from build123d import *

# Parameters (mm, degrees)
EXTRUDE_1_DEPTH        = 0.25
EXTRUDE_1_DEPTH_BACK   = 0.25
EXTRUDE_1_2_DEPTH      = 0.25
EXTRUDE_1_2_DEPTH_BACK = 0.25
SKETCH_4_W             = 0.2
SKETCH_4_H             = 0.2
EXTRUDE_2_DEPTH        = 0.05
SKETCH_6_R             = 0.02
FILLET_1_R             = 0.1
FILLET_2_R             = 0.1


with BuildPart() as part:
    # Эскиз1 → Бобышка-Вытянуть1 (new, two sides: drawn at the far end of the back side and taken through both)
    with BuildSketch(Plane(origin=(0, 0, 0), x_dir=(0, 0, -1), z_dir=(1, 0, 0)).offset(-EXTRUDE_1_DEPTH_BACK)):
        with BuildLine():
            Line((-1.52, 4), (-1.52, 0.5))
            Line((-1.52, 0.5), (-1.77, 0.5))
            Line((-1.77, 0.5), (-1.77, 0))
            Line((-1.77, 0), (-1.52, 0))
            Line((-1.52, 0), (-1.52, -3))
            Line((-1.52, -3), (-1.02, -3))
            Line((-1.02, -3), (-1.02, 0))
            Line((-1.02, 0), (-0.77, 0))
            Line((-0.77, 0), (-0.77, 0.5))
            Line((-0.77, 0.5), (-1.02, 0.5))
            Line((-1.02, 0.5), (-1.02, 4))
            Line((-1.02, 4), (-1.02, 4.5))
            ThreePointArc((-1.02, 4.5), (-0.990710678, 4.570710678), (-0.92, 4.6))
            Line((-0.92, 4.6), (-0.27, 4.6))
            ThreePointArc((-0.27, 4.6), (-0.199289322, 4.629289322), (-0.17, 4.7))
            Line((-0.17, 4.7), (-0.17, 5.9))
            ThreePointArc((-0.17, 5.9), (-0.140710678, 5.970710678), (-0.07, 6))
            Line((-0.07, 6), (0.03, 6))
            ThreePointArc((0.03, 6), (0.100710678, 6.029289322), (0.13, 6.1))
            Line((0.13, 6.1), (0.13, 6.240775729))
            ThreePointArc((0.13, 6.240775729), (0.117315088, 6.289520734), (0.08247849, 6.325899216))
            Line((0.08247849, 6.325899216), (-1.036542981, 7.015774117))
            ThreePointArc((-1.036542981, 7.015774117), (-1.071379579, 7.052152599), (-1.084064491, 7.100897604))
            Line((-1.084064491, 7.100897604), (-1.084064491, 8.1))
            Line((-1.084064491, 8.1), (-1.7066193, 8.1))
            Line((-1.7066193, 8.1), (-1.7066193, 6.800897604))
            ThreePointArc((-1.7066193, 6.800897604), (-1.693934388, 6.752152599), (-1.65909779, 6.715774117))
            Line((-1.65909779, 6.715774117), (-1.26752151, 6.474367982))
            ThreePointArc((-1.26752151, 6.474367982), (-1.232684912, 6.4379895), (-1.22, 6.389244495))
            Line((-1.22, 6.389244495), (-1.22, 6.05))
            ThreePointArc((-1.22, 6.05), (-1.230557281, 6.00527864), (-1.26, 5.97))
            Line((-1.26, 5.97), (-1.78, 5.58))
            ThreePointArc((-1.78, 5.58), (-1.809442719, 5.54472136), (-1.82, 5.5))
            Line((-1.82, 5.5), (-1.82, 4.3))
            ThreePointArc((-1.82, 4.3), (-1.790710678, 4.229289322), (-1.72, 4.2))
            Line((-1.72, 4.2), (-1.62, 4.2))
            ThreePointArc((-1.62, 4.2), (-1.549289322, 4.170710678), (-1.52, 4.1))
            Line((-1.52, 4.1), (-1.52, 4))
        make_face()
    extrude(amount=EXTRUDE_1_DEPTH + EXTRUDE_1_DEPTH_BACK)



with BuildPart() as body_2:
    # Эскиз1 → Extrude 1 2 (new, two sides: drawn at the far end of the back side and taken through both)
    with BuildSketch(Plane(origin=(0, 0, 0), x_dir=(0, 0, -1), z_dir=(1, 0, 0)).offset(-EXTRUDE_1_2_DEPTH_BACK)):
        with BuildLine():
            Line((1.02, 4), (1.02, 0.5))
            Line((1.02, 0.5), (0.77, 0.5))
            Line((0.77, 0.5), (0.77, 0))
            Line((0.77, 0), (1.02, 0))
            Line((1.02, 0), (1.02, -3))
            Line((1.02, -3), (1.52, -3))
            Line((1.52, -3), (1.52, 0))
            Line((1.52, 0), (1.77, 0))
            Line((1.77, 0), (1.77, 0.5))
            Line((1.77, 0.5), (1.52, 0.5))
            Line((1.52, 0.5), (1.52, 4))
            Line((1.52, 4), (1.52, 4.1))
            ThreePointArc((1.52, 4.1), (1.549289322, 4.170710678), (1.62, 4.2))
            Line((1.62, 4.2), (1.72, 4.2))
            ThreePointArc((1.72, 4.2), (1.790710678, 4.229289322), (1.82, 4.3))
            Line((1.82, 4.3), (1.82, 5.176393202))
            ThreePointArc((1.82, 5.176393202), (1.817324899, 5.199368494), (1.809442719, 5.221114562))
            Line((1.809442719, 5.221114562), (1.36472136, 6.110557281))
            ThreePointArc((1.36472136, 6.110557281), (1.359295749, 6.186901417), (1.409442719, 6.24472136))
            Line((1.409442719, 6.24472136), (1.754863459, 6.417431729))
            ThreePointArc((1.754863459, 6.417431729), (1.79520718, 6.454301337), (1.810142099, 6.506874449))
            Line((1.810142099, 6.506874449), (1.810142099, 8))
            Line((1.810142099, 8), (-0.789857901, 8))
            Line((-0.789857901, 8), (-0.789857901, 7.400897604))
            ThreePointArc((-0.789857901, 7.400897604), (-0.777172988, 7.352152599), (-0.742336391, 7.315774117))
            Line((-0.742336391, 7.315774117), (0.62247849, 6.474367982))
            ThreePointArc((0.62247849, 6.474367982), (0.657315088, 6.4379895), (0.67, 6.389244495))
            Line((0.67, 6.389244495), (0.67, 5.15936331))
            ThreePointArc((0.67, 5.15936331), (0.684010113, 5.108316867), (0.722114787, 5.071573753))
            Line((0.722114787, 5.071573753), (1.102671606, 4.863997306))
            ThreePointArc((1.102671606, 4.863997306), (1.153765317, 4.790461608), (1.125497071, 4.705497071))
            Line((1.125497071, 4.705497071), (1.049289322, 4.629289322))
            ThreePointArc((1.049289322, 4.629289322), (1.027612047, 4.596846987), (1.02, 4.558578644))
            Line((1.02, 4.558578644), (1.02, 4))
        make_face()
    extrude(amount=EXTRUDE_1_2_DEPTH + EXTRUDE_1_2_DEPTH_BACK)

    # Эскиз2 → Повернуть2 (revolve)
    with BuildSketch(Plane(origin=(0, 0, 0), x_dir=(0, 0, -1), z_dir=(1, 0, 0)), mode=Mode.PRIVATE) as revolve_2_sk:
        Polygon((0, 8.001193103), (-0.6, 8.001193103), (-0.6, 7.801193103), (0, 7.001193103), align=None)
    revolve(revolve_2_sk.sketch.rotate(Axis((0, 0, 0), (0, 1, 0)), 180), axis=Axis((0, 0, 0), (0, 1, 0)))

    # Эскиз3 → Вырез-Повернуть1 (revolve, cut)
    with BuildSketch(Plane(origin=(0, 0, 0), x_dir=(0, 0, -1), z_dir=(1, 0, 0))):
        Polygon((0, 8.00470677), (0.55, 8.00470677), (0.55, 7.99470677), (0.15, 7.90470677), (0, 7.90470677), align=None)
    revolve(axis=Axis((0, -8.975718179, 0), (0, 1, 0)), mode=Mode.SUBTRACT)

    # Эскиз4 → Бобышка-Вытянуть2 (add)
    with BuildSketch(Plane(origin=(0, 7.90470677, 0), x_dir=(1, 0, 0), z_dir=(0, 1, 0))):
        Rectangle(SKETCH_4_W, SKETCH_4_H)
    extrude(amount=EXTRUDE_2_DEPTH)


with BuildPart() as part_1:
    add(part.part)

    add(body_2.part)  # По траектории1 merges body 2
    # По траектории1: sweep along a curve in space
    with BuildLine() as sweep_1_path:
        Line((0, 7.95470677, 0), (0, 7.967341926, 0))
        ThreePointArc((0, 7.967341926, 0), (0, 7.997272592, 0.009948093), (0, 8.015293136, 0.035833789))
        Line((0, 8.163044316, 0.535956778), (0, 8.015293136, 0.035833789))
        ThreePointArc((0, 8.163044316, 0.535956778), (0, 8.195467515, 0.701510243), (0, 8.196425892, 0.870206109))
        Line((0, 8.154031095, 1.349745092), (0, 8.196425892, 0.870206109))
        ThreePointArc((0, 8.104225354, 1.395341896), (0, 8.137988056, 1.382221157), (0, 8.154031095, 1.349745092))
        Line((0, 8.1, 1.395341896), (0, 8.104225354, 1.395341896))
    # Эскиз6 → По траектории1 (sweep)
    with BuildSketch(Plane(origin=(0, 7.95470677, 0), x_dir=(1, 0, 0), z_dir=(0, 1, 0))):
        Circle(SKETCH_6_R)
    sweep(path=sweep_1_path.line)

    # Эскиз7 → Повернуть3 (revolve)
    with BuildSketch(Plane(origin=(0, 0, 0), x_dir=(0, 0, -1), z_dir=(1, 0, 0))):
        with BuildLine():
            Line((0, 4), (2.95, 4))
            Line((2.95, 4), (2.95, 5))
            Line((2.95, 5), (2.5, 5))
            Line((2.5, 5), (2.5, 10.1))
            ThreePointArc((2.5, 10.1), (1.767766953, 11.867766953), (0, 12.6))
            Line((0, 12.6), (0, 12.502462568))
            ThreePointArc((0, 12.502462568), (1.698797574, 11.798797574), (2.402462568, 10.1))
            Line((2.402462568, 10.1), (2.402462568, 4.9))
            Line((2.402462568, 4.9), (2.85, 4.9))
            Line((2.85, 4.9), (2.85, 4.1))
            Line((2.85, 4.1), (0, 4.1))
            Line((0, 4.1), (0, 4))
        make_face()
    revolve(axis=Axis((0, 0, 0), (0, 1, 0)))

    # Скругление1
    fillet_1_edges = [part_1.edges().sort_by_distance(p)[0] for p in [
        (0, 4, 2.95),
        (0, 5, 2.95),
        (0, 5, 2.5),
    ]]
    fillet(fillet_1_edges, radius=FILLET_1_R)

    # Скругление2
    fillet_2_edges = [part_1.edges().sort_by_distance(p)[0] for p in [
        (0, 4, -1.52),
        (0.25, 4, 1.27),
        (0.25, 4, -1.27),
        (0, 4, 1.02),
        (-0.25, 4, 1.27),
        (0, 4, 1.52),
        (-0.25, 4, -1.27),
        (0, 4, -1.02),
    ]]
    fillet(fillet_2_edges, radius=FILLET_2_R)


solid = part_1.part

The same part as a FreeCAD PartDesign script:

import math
import FreeCAD as App
import Part
import Sketcher
from FreeCAD import Vector
Q = App.Units.Quantity


def edges_at(feature, points):
    """Names of the edges that pass closest to the given points."""
    edges = feature.Shape.Edges
    near = lambda p: min(range(len(edges)), key=lambda i: edges[i].distToShape(Part.Vertex(*p))[0])
    return sorted({f"Edge{near(p) + 1}" for p in points})


def add_polygon(sketch, points):
    """Adds a closed chain of lines whose ends are joined by coincident constraints."""
    first, n = sketch.GeometryCount, len(points)
    for a, b in zip(points, points[1:] + points[:1]):
        sketch.addGeometry(Part.LineSegment(App.Vector(*a, 0), App.Vector(*b, 0)), False)
    for i in range(n):
        sketch.addConstraint(Sketcher.Constraint("Coincident", first + i, 2, first + (i + 1) % n, 1))

doc = App.newDocument("Part")
body = doc.addObject("PartDesign::Body", "Body")

sketch1 = body.newObject("Sketcher::SketchObject", "Sketch")
sketch1.AttachmentSupport = (doc.getObject("YZ_Plane"), [""])
sketch1.MapMode = "FlatFace"
sketch1.addGeometry([
    Part.LineSegment(Vector(0.5, 1.52, 0), Vector(0.5, 1.77, 0)),
    Part.LineSegment(Vector(0.5, 1.77, 0), Vector(0, 1.77, 0)),
    Part.LineSegment(Vector(0, 1.77, 0), Vector(0, 1.52, 0)),
    Part.LineSegment(Vector(0, 1.52, 0), Vector(-3, 1.52, 0)),
    Part.LineSegment(Vector(-3, 1.52, 0), Vector(-3, 1.02, 0)),
    Part.LineSegment(Vector(-3, 1.02, 0), Vector(0, 1.02, 0)),
    Part.LineSegment(Vector(0, 1.02, 0), Vector(0, 0.77, 0)),
    Part.LineSegment(Vector(0, 0.77, 0), Vector(0.5, 0.77, 0)),
    Part.LineSegment(Vector(0.5, 0.77, 0), Vector(0.5, 1.02, 0)),
    Part.LineSegment(Vector(0.5, 1.02, 0), Vector(4.5, 1.02, 0)),
    Part.ArcOfCircle(Part.Circle(Vector(4.5, 0.92, 0), Vector(0, 0, 1), 0.1), math.radians(0), math.radians(90)),
    Part.LineSegment(Vector(4.6, 0.92, 0), Vector(4.6, 0.27, 0)),
    Part.ArcOfCircle(Part.Circle(Vector(4.7, 0.27, 0), Vector(0, 0, 1), 0.1), math.radians(180), math.radians(270)),
    Part.LineSegment(Vector(4.7, 0.17, 0), Vector(5.9, 0.17, 0)),
    Part.ArcOfCircle(Part.Circle(Vector(5.9, 0.07, 0), Vector(0, 0, 1), 0.1), math.radians(0), math.radians(90)),
    Part.LineSegment(Vector(6, 0.07, 0), Vector(6, -0.03, 0)),
    Part.ArcOfCircle(Part.Circle(Vector(6.1, -0.03, 0), Vector(0, 0, 1), 0.1), math.radians(180), math.radians(270)),
    Part.LineSegment(Vector(6.1, -0.13, 0), Vector(6.240776, -0.13, 0)),
    Part.ArcOfCircle(Part.Circle(Vector(6.240776, -0.03, 0), Vector(0, 0, 1), 0.1), math.radians(-90.000001), math.radians(-31.653762)),
    Part.LineSegment(Vector(6.325899, -0.082478, 0), Vector(7.015774, 1.036543, 0)),
    Part.ArcOfCircle(Part.Circle(Vector(7.100898, 0.984064, 0), Vector(0, 0, 1), 0.1), math.radians(89.999999), math.radians(148.346238)),
    Part.LineSegment(Vector(7.100898, 1.084064, 0), Vector(8.1, 1.084064, 0)),
    Part.LineSegment(Vector(8.1, 1.084064, 0), Vector(8.1, 1.706619, 0)),
    Part.LineSegment(Vector(8.1, 1.706619, 0), Vector(6.800898, 1.706619, 0)),
    Part.ArcOfCircle(Part.Circle(Vector(6.800898, 1.606619, 0), Vector(0, 0, 1), 0.1), math.radians(89.999999), math.radians(148.346238)),
    Part.LineSegment(Vector(6.715774, 1.659098, 0), Vector(6.474368, 1.267522, 0)),
    Part.ArcOfCircle(Part.Circle(Vector(6.389244, 1.32, 0), Vector(0, 0, 1), 0.1), math.radians(-90.000001), math.radians(-31.653762)),
    Part.LineSegment(Vector(6.389244, 1.22, 0), Vector(6.05, 1.22, 0)),
    Part.ArcOfCircle(Part.Circle(Vector(6.05, 1.32, 0), Vector(0, 0, 1), 0.1), math.radians(-143.130103), math.radians(-90)),
    Part.LineSegment(Vector(5.97, 1.26, 0), Vector(5.58, 1.78, 0)),
    Part.ArcOfCircle(Part.Circle(Vector(5.5, 1.72, 0), Vector(0, 0, 1), 0.1), math.radians(36.869897), math.radians(90)),
    Part.LineSegment(Vector(5.5, 1.82, 0), Vector(4.3, 1.82, 0)),
    Part.ArcOfCircle(Part.Circle(Vector(4.3, 1.72, 0), Vector(0, 0, 1), 0.1), math.radians(90), math.radians(180)),
    Part.LineSegment(Vector(4.2, 1.72, 0), Vector(4.2, 1.62, 0)),
    Part.ArcOfCircle(Part.Circle(Vector(4.1, 1.62, 0), Vector(0, 0, 1), 0.1), math.radians(-90), math.radians(0)),
    Part.LineSegment(Vector(4.1, 1.52, 0), Vector(0.5, 1.52, 0)),
], False)
sketch1.addConstraint([
    Sketcher.Constraint("Coincident", 0, 2, 1, 1),
    Sketcher.Constraint("Coincident", 1, 2, 2, 1),
    Sketcher.Constraint("Coincident", 2, 2, 3, 1),
    Sketcher.Constraint("Coincident", 3, 2, 4, 1),
    Sketcher.Constraint("Coincident", 4, 2, 5, 1),
    Sketcher.Constraint("Coincident", 5, 2, 6, 1),
    Sketcher.Constraint("Coincident", 6, 2, 7, 1),
    Sketcher.Constraint("Coincident", 7, 2, 8, 1),
    Sketcher.Constraint("Coincident", 8, 2, 9, 1),
    Sketcher.Constraint("Coincident", 9, 2, 10, 2),
    Sketcher.Constraint("Coincident", 10, 1, 11, 1),
    Sketcher.Constraint("Coincident", 11, 2, 12, 1),
    Sketcher.Constraint("Coincident", 12, 2, 13, 1),
    Sketcher.Constraint("Coincident", 13, 2, 14, 2),
    Sketcher.Constraint("Coincident", 14, 1, 15, 1),
    Sketcher.Constraint("Coincident", 15, 2, 16, 1),
    Sketcher.Constraint("Coincident", 16, 2, 17, 1),
    Sketcher.Constraint("Coincident", 17, 2, 18, 1),
    Sketcher.Constraint("Coincident", 18, 2, 19, 1),
    Sketcher.Constraint("Coincident", 19, 2, 20, 2),
    Sketcher.Constraint("Coincident", 20, 1, 21, 1),
    Sketcher.Constraint("Coincident", 21, 2, 22, 1),
    Sketcher.Constraint("Coincident", 22, 2, 23, 1),
    Sketcher.Constraint("Coincident", 23, 2, 24, 1),
    Sketcher.Constraint("Coincident", 24, 2, 25, 1),
    Sketcher.Constraint("Coincident", 25, 2, 26, 2),
    Sketcher.Constraint("Coincident", 26, 1, 27, 1),
    Sketcher.Constraint("Coincident", 27, 2, 28, 2),
    Sketcher.Constraint("Coincident", 28, 1, 29, 1),
    Sketcher.Constraint("Coincident", 29, 2, 30, 1),
    Sketcher.Constraint("Coincident", 30, 2, 31, 1),
    Sketcher.Constraint("Coincident", 31, 2, 32, 1),
    Sketcher.Constraint("Coincident", 32, 2, 33, 1),
    Sketcher.Constraint("Coincident", 33, 2, 34, 2),
    Sketcher.Constraint("Coincident", 34, 1, 35, 1),
    Sketcher.Constraint("Coincident", 35, 2, 0, 1),
    Sketcher.Constraint("Vertical", 0),
    Sketcher.Constraint("Horizontal", 1),
    Sketcher.Constraint("Vertical", 2),
    Sketcher.Constraint("Horizontal", 3),
    Sketcher.Constraint("Vertical", 4),
    Sketcher.Constraint("Horizontal", 5),
    Sketcher.Constraint("Vertical", 6),
    Sketcher.Constraint("Horizontal", 7),
    Sketcher.Constraint("Vertical", 8),
    Sketcher.Constraint("Horizontal", 9),
    Sketcher.Constraint("Vertical", 11),
    Sketcher.Constraint("Horizontal", 13),
    Sketcher.Constraint("Vertical", 15),
    Sketcher.Constraint("Horizontal", 17),
    Sketcher.Constraint("Horizontal", 21),
    Sketcher.Constraint("Vertical", 22),
    Sketcher.Constraint("Horizontal", 23),
    Sketcher.Constraint("Horizontal", 27),
    Sketcher.Constraint("Horizontal", 31),
    Sketcher.Constraint("Vertical", 33),
    Sketcher.Constraint("Horizontal", 35),
    Sketcher.Constraint("PointOnObject", 1, 2, -2),
    Sketcher.Constraint("PointOnObject", 5, 2, -2),
    Sketcher.Constraint("Radius", 10, Q("0.1 mm")),
    Sketcher.Constraint("Radius", 12, Q("0.1 mm")),
    Sketcher.Constraint("Radius", 14, Q("0.1 mm")),
    Sketcher.Constraint("Radius", 16, Q("0.1 mm")),
    Sketcher.Constraint("Radius", 18, Q("0.1 mm")),
    Sketcher.Constraint("Radius", 20, Q("0.1 mm")),
    Sketcher.Constraint("Radius", 24, Q("0.1 mm")),
    Sketcher.Constraint("Radius", 26, Q("0.1 mm")),
    Sketcher.Constraint("Radius", 28, Q("0.1 mm")),
    Sketcher.Constraint("Radius", 30, Q("0.1 mm")),
    Sketcher.Constraint("Radius", 32, Q("0.1 mm")),
    Sketcher.Constraint("Radius", 34, Q("0.1 mm")),
    Sketcher.Constraint("DistanceX", 3, 2, 3, 1, Q("3 mm")),
    Sketcher.Constraint("DistanceX", 9, 1, 9, 2, Q("4 mm")),
    Sketcher.Constraint("DistanceX", 1, 2, 1, 1, Q("0.5 mm")),
    Sketcher.Constraint("DistanceX", 7, 1, 7, 2, Q("0.5 mm")),
    Sketcher.Constraint("DistanceX", 13, 1, 13, 2, Q("1.2 mm")),
    Sketcher.Constraint("DistanceX", 31, 2, 31, 1, Q("1.2 mm")),
    Sketcher.Constraint("DistanceX", 35, 2, 35, 1, Q("3.6 mm")),
    Sketcher.Constraint("DistanceY", 4, 2, 4, 1, Q("0.5 mm")),
    Sketcher.Constraint("DistanceY", 15, 2, 15, 1, Q("0.1 mm")),
    Sketcher.Constraint("DistanceY", 33, 2, 33, 1, Q("0.1 mm")),
    Sketcher.Constraint("DistanceX", -1, 1, 14, 1, Q("6 mm")),
    Sketcher.Constraint("DistanceX", 10, 3, 30, 3, Q("1 mm")),
    Sketcher.Constraint("DistanceX", 0, 2, 10, 3, Q("4 mm")),
    Sketcher.Constraint("DistanceY", 6, 2, 1, 2, Q("1 mm")),
    Sketcher.Constraint("DistanceY", 0, 1, 0, 2, Q("0.25 mm")),
    Sketcher.Constraint("DistanceY", 2, 2, 2, 1, Q("0.25 mm")),
    Sketcher.Constraint("DistanceY", 8, 1, 8, 2, Q("0.25 mm")),
    Sketcher.Constraint("DistanceY", 11, 2, 11, 1, Q("0.65 mm")),
    Sketcher.Constraint("DistanceX", -1, 1, 32, 3, Q("4.3 mm")),
    Sketcher.Constraint("DistanceX", -1, 1, 12, 2, Q("4.7 mm")),
    Sketcher.Constraint("DistanceX", -1, 1, 16, 2, Q("6.1 mm")),
    Sketcher.Constraint("DistanceX", -1, 1, 21, 2, Q("8.1 mm")),
    Sketcher.Constraint("DistanceX", -1, 1, 30, 2, Q("5.5 mm")),
    Sketcher.Constraint("DistanceY", 16, 3, 14, 3, Q("0.1 mm")),
    Sketcher.Constraint("DistanceX", 24, 3, 20, 3, Q("0.3 mm")),
    Sketcher.Constraint("DistanceY", 28, 3, 30, 3, Q("0.4 mm")),
    Sketcher.Constraint("DistanceY", 10, 3, 30, 3, Q("0.8 mm")),
    Sketcher.Constraint("DistanceY", 12, 3, 0, 2, Q("1.5 mm")),
    Sketcher.Constraint("DistanceY", 10, 1, 9, 2, Q("0.1 mm")),
    Sketcher.Constraint("DistanceY", 16, 3, 14, 1, Q("0.1 mm")),
    Sketcher.Constraint("DistanceX", 24, 3, 20, 1, Q("0.3 mm")),
    Sketcher.Constraint("DistanceX", 23, 2, 20, 1, Q("0.3 mm")),
    Sketcher.Constraint("DistanceX", 24, 2, 19, 2, Q("0.3 mm")),
    Sketcher.Constraint("DistanceY", 32, 2, 31, 2, Q("0.1 mm")),
    Sketcher.Constraint("Distance", 29, Q("0.65 mm")),
    Sketcher.Constraint("DistanceY", -1, 1, 10, 3, Q("0.92 mm")),
    Sketcher.Constraint("DistanceX", -1, 1, 28, 3, Q("6.05 mm")),
    Sketcher.Constraint("DistanceX", -1, 1, 27, 2, Q("6.05 mm")),
    Sketcher.Constraint("DistanceX", -1, 1, 28, 1, Q("5.97 mm")),
    Sketcher.Constraint("DistanceX", -1, 1, 18, 2, Q("6.325899 mm")),
    Sketcher.Constraint("Distance", 25, Q("0.46001 mm")),
    Sketcher.Constraint("DistanceX", 17, 1, 17, 2, Q("0.140776 mm")),
    Sketcher.Constraint("DistanceX", 21, 1, 21, 2, Q("0.999102 mm")),
    Sketcher.Constraint("DistanceX", 27, 2, 27, 1, Q("0.339244 mm")),
    Sketcher.Constraint("DistanceY", 22, 1, 22, 2, Q("0.622555 mm")),
    Sketcher.Constraint("DistanceY", -1, 1, 24, 3, Q("1.606619 mm")),
    Sketcher.Constraint("DistanceY", 18, 2, -1, 1, Q("0.082478 mm")),
    Sketcher.Constraint("DistanceY", -1, 1, 25, 2, Q("1.267522 mm")),
    Sketcher.Constraint("DistanceX", 18, 3, 26, 3, Q("0.148469 mm")),
])
pad1 = body.newObject("PartDesign::Pad", "Pad")
pad1.Profile = sketch1
pad1.Type = "TwoLengths"
pad1.Length = 0.25
pad1.Length2 = 0.25
body2 = doc.addObject("PartDesign::Body", "Body001")

sketch2 = body2.newObject("Sketcher::SketchObject", "Sketch001")
sketch2.AttachmentSupport = (doc.getObject("YZ_Plane001"), [""])
sketch2.MapMode = "FlatFace"
sketch2.addGeometry([
    Part.LineSegment(Vector(0.5, -1.02, 0), Vector(0.5, -0.77, 0)),
    Part.LineSegment(Vector(0.5, -0.77, 0), Vector(0, -0.77, 0)),
    Part.LineSegment(Vector(0, -0.77, 0), Vector(0, -1.02, 0)),
    Part.LineSegment(Vector(0, -1.02, 0), Vector(-3, -1.02, 0)),
    Part.LineSegment(Vector(-3, -1.02, 0), Vector(-3, -1.52, 0)),
    Part.LineSegment(Vector(-3, -1.52, 0), Vector(0, -1.52, 0)),
    Part.LineSegment(Vector(0, -1.52, 0), Vector(0, -1.77, 0)),
    Part.LineSegment(Vector(0, -1.77, 0), Vector(0.5, -1.77, 0)),
    Part.LineSegment(Vector(0.5, -1.77, 0), Vector(0.5, -1.52, 0)),
    Part.LineSegment(Vector(0.5, -1.52, 0), Vector(4.1, -1.52, 0)),
    Part.ArcOfCircle(Part.Circle(Vector(4.1, -1.62, 0), Vector(0, 0, 1), 0.1), math.radians(0), math.radians(90)),
    Part.LineSegment(Vector(4.2, -1.62, 0), Vector(4.2, -1.72, 0)),
    Part.ArcOfCircle(Part.Circle(Vector(4.3, -1.72, 0), Vector(0, 0, 1), 0.1), math.radians(180), math.radians(270)),
    Part.LineSegment(Vector(4.3, -1.82, 0), Vector(5.176, -1.82, 0)),
    Part.ArcOfCircle(Part.Circle(Vector(5.176, -1.72, 0), Vector(0, 0, 1), 0.1), math.radians(-90), math.radians(-63)),
    Part.LineSegment(Vector(5.221, -1.809, 0), Vector(6.111, -1.365, 0)),
    Part.ArcOfCircle(Part.Circle(Vector(6.155, -1.454, 0), Vector(0, 0, 1), 0.1), math.radians(27), math.radians(117)),
    Part.LineSegment(Vector(6.245, -1.409, 0), Vector(6.417, -1.755, 0)),
    Part.ArcOfCircle(Part.Circle(Vector(6.507, -1.71, 0), Vector(0, 0, 1), 0.1), math.radians(-153), math.radians(-90)),
    Part.LineSegment(Vector(6.507, -1.81, 0), Vector(8, -1.81, 0)),
    Part.LineSegment(Vector(8, -1.81, 0), Vector(8, 0.79, 0)),
    Part.LineSegment(Vector(8, 0.79, 0), Vector(7.401, 0.79, 0)),
    Part.ArcOfCircle(Part.Circle(Vector(7.401, 0.69, 0), Vector(0, 0, 1), 0.1), math.radians(90), math.radians(148)),
    Part.LineSegment(Vector(7.316, 0.742, 0), Vector(6.474, -0.622, 0)),
    Part.ArcOfCircle(Part.Circle(Vector(6.389, -0.57, 0), Vector(0, 0, 1), 0.1), math.radians(-90), math.radians(-32)),
    Part.LineSegment(Vector(6.389, -0.67, 0), Vector(5.159, -0.67, 0)),
    Part.ArcOfCircle(Part.Circle(Vector(5.159, -0.77, 0), Vector(0, 0, 1), 0.1), math.radians(90), math.radians(151)),
    Part.LineSegment(Vector(5.072, -0.722, 0), Vector(4.864, -1.103, 0)),
    Part.ArcOfCircle(Part.Circle(Vector(4.776, -1.055, 0), Vector(0, 0, 1), 0.1), math.radians(-135), math.radians(-29)),
    Part.LineSegment(Vector(4.705, -1.125, 0), Vector(4.629, -1.049, 0)),
    Part.ArcOfCircle(Part.Circle(Vector(4.559, -1.12, 0), Vector(0, 0, 1), 0.1), math.radians(45), math.radians(90)),
    Part.LineSegment(Vector(4.559, -1.02, 0), Vector(0.5, -1.02, 0)),
], False)
sketch2.addConstraint([
    Sketcher.Constraint("Coincident", 0, 2, 1, 1),
    Sketcher.Constraint("Coincident", 1, 2, 2, 1),
    Sketcher.Constraint("Coincident", 2, 2, 3, 1),
    Sketcher.Constraint("Coincident", 3, 2, 4, 1),
    Sketcher.Constraint("Coincident", 4, 2, 5, 1),
    Sketcher.Constraint("Coincident", 5, 2, 6, 1),
    Sketcher.Constraint("Coincident", 6, 2, 7, 1),
    Sketcher.Constraint("Coincident", 7, 2, 8, 1),
    Sketcher.Constraint("Coincident", 8, 2, 9, 1),
    Sketcher.Constraint("Tangent", 9, 2, 10, 2),
    Sketcher.Constraint("Tangent", 10, 1, 11, 1),
    Sketcher.Constraint("Tangent", 11, 2, 12, 1),
    Sketcher.Constraint("Tangent", 12, 2, 13, 1),
    Sketcher.Constraint("Tangent", 13, 2, 14, 1),
    Sketcher.Constraint("Tangent", 14, 2, 15, 1),
    Sketcher.Constraint("Tangent", 15, 2, 16, 2),
    Sketcher.Constraint("Tangent", 16, 1, 17, 1),
    Sketcher.Constraint("Tangent", 17, 2, 18, 1),
    Sketcher.Constraint("Tangent", 18, 2, 19, 1),
    Sketcher.Constraint("Coincident", 19, 2, 20, 1),
    Sketcher.Constraint("Coincident", 20, 2, 21, 1),
    Sketcher.Constraint("Tangent", 21, 2, 22, 1),
    Sketcher.Constraint("Tangent", 22, 2, 23, 1),
    Sketcher.Constraint("Tangent", 23, 2, 24, 2),
    Sketcher.Constraint("Tangent", 24, 1, 25, 1),
    Sketcher.Constraint("Tangent", 25, 2, 26, 1),
    Sketcher.Constraint("Tangent", 26, 2, 27, 1),
    Sketcher.Constraint("Tangent", 27, 2, 28, 2),
    Sketcher.Constraint("Tangent", 28, 1, 29, 1),
    Sketcher.Constraint("Tangent", 29, 2, 30, 1),
    Sketcher.Constraint("Tangent", 30, 2, 31, 1),
    Sketcher.Constraint("Coincident", 31, 2, 0, 1),
    Sketcher.Constraint("Vertical", 0),
    Sketcher.Constraint("Horizontal", 1),
    Sketcher.Constraint("Vertical", 2),
    Sketcher.Constraint("Horizontal", 3),
    Sketcher.Constraint("Vertical", 4),
    Sketcher.Constraint("Horizontal", 5),
    Sketcher.Constraint("Vertical", 6),
    Sketcher.Constraint("Horizontal", 7),
    Sketcher.Constraint("Vertical", 8),
    Sketcher.Constraint("Horizontal", 9),
    Sketcher.Constraint("Vertical", 11),
    Sketcher.Constraint("Horizontal", 13),
    Sketcher.Constraint("Horizontal", 19),
    Sketcher.Constraint("Vertical", 20),
    Sketcher.Constraint("Horizontal", 21),
    Sketcher.Constraint("Horizontal", 25),
    Sketcher.Constraint("Horizontal", 31),
    Sketcher.Constraint("Equal", 10, 12),
    Sketcher.Constraint("Equal", 12, 14),
    Sketcher.Constraint("Equal", 14, 16),
    Sketcher.Constraint("Equal", 16, 18),
    Sketcher.Constraint("Equal", 18, 22),
    Sketcher.Constraint("Equal", 22, 24),
    Sketcher.Constraint("Equal", 24, 26),
    Sketcher.Constraint("Equal", 26, 28),
    Sketcher.Constraint("Equal", 28, 30),
    Sketcher.Constraint("PointOnObject", 1, 2, -2),
    Sketcher.Constraint("PointOnObject", 5, 2, -2),
    Sketcher.Constraint("Perpendicular", 15, 17),
    Sketcher.Constraint("Horizontal", 26, 3, 0, 2),
    Sketcher.Constraint("Horizontal", 5, 2, 8, 2),
    Sketcher.Constraint("Horizontal", 3, 2, 30, 2),
    Sketcher.Constraint("Vertical", 0, 2, 7, 2),
    Sketcher.Constraint("Equal", 7, 4),
    Sketcher.Constraint("Equal", 2, 6),
    Sketcher.Constraint("Radius", 10, Q("0.1 mm")),
    Sketcher.Constraint("DistanceX", 3, 2, 3, 1, Q("3 mm")),
    Sketcher.Constraint("Angle", 29, Q("135 deg")),
    Sketcher.Constraint("DistanceX", 1, 2, 1, 1, Q("0.5 mm")),
    Sketcher.Constraint("DistanceX", 9, 1, 9, 2, Q("3.6 mm")),
    Sketcher.Constraint("DistanceY", 11, 2, 11, 1, Q("0.1 mm")),
    Sketcher.Constraint("DistanceY", 20, 1, 20, 2, Q("2.6 mm")),
    Sketcher.Constraint("DistanceX", -1, 1, 19, 2, Q("8 mm")),
    Sketcher.Constraint("DistanceY", 6, 2, 1, 2, Q("1 mm")),
    Sketcher.Constraint("DistanceY", 14, 2, 16, 1, Q("0.4 mm")),
    Sketcher.Constraint("DistanceY", 10, 3, -1, 1, Q("1.62 mm")),
    Sketcher.Constraint("DistanceX", 25, 2, 25, 1, Q("1.229881 mm")),
    Sketcher.Constraint("DistanceX", 31, 2, 31, 1, Q("4.058579 mm")),
    Sketcher.Constraint("DistanceY", 18, 3, 16, 1, Q("0.300699 mm")),
    Sketcher.Constraint("DistanceX", 28, 1, 27, 2, Q("0.1585 mm")),
    Sketcher.Constraint("DistanceX", 13, 1, 13, 2, Q("0.876393 mm")),
    Sketcher.Constraint("DistanceX", 19, 1, 19, 2, Q("1.493126 mm")),
    Sketcher.Constraint("DistanceX", 21, 2, 21, 1, Q("0.599102 mm")),
    Sketcher.Constraint("DistanceY", 23, 2, -1, 1, Q("0.622478 mm")),
])
pad2 = body2.newObject("PartDesign::Pad", "Pad001")
pad2.Profile = sketch2
pad2.Type = "TwoLengths"
pad2.Length = 0.25
pad2.Length2 = 0.25

sketch3 = body2.newObject("Sketcher::SketchObject", "Sketch002")
sketch3.AttachmentSupport = (doc.getObject("YZ_Plane001"), [""])
sketch3.MapMode = "FlatFace"
add_polygon(sketch3, [(8, 0), (8, 0.6), (7.8, 0.6), (7, 0)])
sketch3.addConstraint([
    Sketcher.Constraint("Vertical", 0),
    Sketcher.Constraint("Horizontal", 1),
    Sketcher.Constraint("Horizontal", 3),
    Sketcher.Constraint("PointOnObject", 2, 2, -1),
    Sketcher.Constraint("DistanceX", 3, 1, 3, 2, Q("1 mm")),
    Sketcher.Constraint("Distance", 2, Q("1 mm")),
    Sketcher.Constraint("DistanceX", 1, 2, 1, 1, Q("0.2 mm")),
    Sketcher.Constraint("DistanceX", -1, 1, 0, 2, Q("8.001193 mm")),
])
revolution = body2.newObject("PartDesign::Revolution", "Revolution")
revolution.Profile = sketch3
revolution.ReferenceAxis = (sketch3, ["H_Axis"])
revolution.Angle = 360

sketch4 = body2.newObject("Sketcher::SketchObject", "Sketch003")
sketch4.AttachmentSupport = (doc.getObject("YZ_Plane001"), [""])
sketch4.MapMode = "FlatFace"
add_polygon(sketch4, [(8.005, -0.55), (8.005, 0), (7.905, 0), (7.905, -0.15), (7.995, -0.55)])
sketch4.addConstraint([
    Sketcher.Constraint("Vertical", 0),
    Sketcher.Constraint("Horizontal", 1),
    Sketcher.Constraint("Vertical", 2),
    Sketcher.Constraint("Horizontal", 4),
    Sketcher.Constraint("PointOnObject", 0, 2, -1),
    Sketcher.Constraint("DistanceX", 1, 2, 1, 1, Q("0.1 mm")),
    Sketcher.Constraint("DistanceX", 4, 1, 4, 2, Q("0.01 mm")),
    Sketcher.Constraint("DistanceY", 0, 1, 0, 2, Q("0.55 mm")),
    Sketcher.Constraint("DistanceY", 2, 2, 2, 1, Q("0.15 mm")),
    Sketcher.Constraint("DistanceX", -1, 1, 0, 2, Q("8.004707 mm")),
])
groove = body2.newObject("PartDesign::Groove", "Groove")
groove.Profile = sketch4
groove.ReferenceAxis = (sketch4, ["H_Axis"])
groove.Angle = 360

sketch5 = body2.newObject("Sketcher::SketchObject", "Sketch004")
sketch5.AttachmentSupport = (doc.getObject("XZ_Plane001"), [""])
sketch5.MapMode = "FlatFace"
sketch5.AttachmentOffset = App.Placement(Vector(0, 0, -7.904707), App.Rotation())
add_polygon(sketch5, [(-0.1, -0.1), (-0.1, 0.1), (0.1, 0.1), (0.1, -0.1)])
sketch5.addConstraint([
    Sketcher.Constraint("Vertical", 0),
    Sketcher.Constraint("Horizontal", 1),
    Sketcher.Constraint("Vertical", 2),
    Sketcher.Constraint("Horizontal", 3),
    Sketcher.Constraint("Symmetric", 0, 2, 2, 2, -1, 1),
    Sketcher.Constraint("Equal", 3, 0),
    Sketcher.Constraint("DistanceX", 1, 1, 1, 2, Q("0.2 mm")),
])
pad3 = body2.newObject("PartDesign::Pad", "Pad002")
pad3.Profile = sketch5
pad3.Length = 0.05
pad3.Reversed = True
body.AllowCompound = True
doc.recompute()

boolean = body.newObject("PartDesign::Boolean", "Boolean")
boolean.Type = "Fuse"
boolean.addObjects([body2])

sketch6 = body.newObject("Sketcher::SketchObject", "Sketch005")
sketch6.AttachmentSupport = (doc.getObject("XZ_Plane"), [""])
sketch6.MapMode = "FlatFace"
sketch6.AttachmentOffset = App.Placement(Vector(0, 0, -7.954707), App.Rotation())
sketch6.addGeometry(Part.Circle(Vector(0, 0, 0), Vector(0, 0, 1), 0.02), False)
sketch6.addConstraint([
    Sketcher.Constraint("Coincident", 0, 3, -1, 1),
    Sketcher.Constraint("Diameter", 0, Q("0.04 mm")),
])

sketch7 = body.newObject("Sketcher::SketchObject", "Sketch006")
sketch7.AttachmentSupport = (doc.getObject("YZ_Plane"), [""])
sketch7.MapMode = "FlatFace"
sketch7.addGeometry([
    Part.LineSegment(Vector(7.9547, 0, 0), Vector(7.9673, 0, 0)),
    Part.ArcOfCircle(Part.Circle(Vector(7.9673, 0.05, 0), Vector(0, 0, 1), 0.05), math.radians(-90), math.radians(-16)),
    Part.LineSegment(Vector(8.0153, 0.0358, 0), Vector(8.163, 0.536, 0)),
    Part.ArcOfCircle(Part.Circle(Vector(7.2999, 0.7909, 0), Vector(0, 0, 1), 0.9), math.radians(-16), math.radians(5)),
    Part.LineSegment(Vector(8.1964, 0.8702, 0), Vector(8.154, 1.3497, 0)),
    Part.ArcOfCircle(Part.Circle(Vector(8.1042, 1.3453, 0), Vector(0, 0, 1), 0.05), math.radians(5), math.radians(90)),
    Part.LineSegment(Vector(8.1042, 1.3953, 0), Vector(8.1, 1.3953, 0)),
], False)
sketch7.addConstraint([
    Sketcher.Constraint("Tangent", 0, 2, 1, 1),
    Sketcher.Constraint("Tangent", 1, 2, 2, 1),
    Sketcher.Constraint("Tangent", 2, 2, 3, 1),
    Sketcher.Constraint("Tangent", 3, 2, 4, 1),
    Sketcher.Constraint("Tangent", 4, 2, 5, 1),
    Sketcher.Constraint("Tangent", 5, 2, 6, 1),
    Sketcher.Constraint("Horizontal", 0),
    Sketcher.Constraint("Horizontal", 6),
    Sketcher.Constraint("Equal", 1, 5),
    Sketcher.Constraint("PointOnObject", 0, 1, -1),
    Sketcher.Constraint("Radius", 3, Q("0.9 mm")),
    Sketcher.Constraint("Radius", 1, Q("0.05 mm")),
    Sketcher.Constraint("DistanceX", -1, 1, 6, 2, Q("8.1 mm")),
    Sketcher.Constraint("DistanceX", 5, 3, 3, 2, Q("0.092201 mm")),
    Sketcher.Constraint("Distance", 2, Q("0.521492 mm")),
    Sketcher.Constraint("Distance", 4, Q("0.481409 mm")),
    Sketcher.Constraint("DistanceX", 0, 1, 0, 2, Q("0.012635 mm")),
    Sketcher.Constraint("DistanceX", 6, 2, 6, 1, Q("0.004225 mm")),
    Sketcher.Constraint("DistanceX", -1, 1, 1, 3, Q("7.967342 mm")),
])
doc.recompute()

additivepipe = body.newObject("PartDesign::AdditivePipe", "AdditivePipe")
additivepipe.Profile = sketch6
additivepipe.Spine = (sketch7, ["Edge1", "Edge2", "Edge3", "Edge4", "Edge5", "Edge6", "Edge7"])

sketch8 = body.newObject("Sketcher::SketchObject", "Sketch007")
sketch8.AttachmentSupport = (doc.getObject("YZ_Plane"), [""])
sketch8.MapMode = "FlatFace"
sketch8.addGeometry([
    Part.LineSegment(Vector(4, 0, 0), Vector(4, -2.95, 0)),
    Part.LineSegment(Vector(4, -2.95, 0), Vector(5, -2.95, 0)),
    Part.LineSegment(Vector(5, -2.95, 0), Vector(5, -2.5, 0)),
    Part.LineSegment(Vector(5, -2.5, 0), Vector(10.1, -2.5, 0)),
    Part.ArcOfCircle(Part.Circle(Vector(10.1, 0, 0), Vector(0, 0, 1), 2.5), math.radians(-90), math.radians(0)),
    Part.LineSegment(Vector(12.6, 0, 0), Vector(12.5, 0, 0)),
    Part.ArcOfCircle(Part.Circle(Vector(10.1, 0, 0), Vector(0, 0, 1), 2.4), math.radians(-90), math.radians(0)),
    Part.LineSegment(Vector(10.1, -2.4, 0), Vector(4.9, -2.4, 0)),
    Part.LineSegment(Vector(4.9, -2.4, 0), Vector(4.9, -2.85, 0)),
    Part.LineSegment(Vector(4.9, -2.85, 0), Vector(4.1, -2.85, 0)),
    Part.LineSegment(Vector(4.1, -2.85, 0), Vector(4.1, 0, 0)),
    Part.LineSegment(Vector(4.1, 0, 0), Vector(4, 0, 0)),
], False)
sketch8.addConstraint([
    Sketcher.Constraint("Coincident", 0, 2, 1, 1),
    Sketcher.Constraint("Coincident", 1, 2, 2, 1),
    Sketcher.Constraint("Coincident", 2, 2, 3, 1),
    Sketcher.Constraint("Tangent", 3, 2, 4, 1),
    Sketcher.Constraint("Coincident", 4, 2, 5, 1),
    Sketcher.Constraint("Coincident", 5, 2, 6, 2),
    Sketcher.Constraint("Tangent", 6, 1, 7, 1),
    Sketcher.Constraint("Coincident", 7, 2, 8, 1),
    Sketcher.Constraint("Coincident", 8, 2, 9, 1),
    Sketcher.Constraint("Coincident", 9, 2, 10, 1),
    Sketcher.Constraint("Coincident", 10, 2, 11, 1),
    Sketcher.Constraint("Coincident", 11, 2, 0, 1),
    Sketcher.Constraint("Vertical", 0),
    Sketcher.Constraint("Horizontal", 1),
    Sketcher.Constraint("Vertical", 2),
    Sketcher.Constraint("Horizontal", 3),
    Sketcher.Constraint("Horizontal", 5),
    Sketcher.Constraint("Horizontal", 7),
    Sketcher.Constraint("Vertical", 8),
    Sketcher.Constraint("Horizontal", 9),
    Sketcher.Constraint("Vertical", 10),
    Sketcher.Constraint("Horizontal", 11),
    Sketcher.Constraint("Coincident", 6, 3, 4, 3),
    Sketcher.Constraint("PointOnObject", 4, 3, -1),
    Sketcher.Constraint("PointOnObject", 4, 2, -1),
    Sketcher.Constraint("PointOnObject", 10, 2, -1),
    Sketcher.Constraint("Radius", 4, Q("2.5 mm")),
    Sketcher.Constraint("DistanceX", 1, 1, 1, 2, Q("1 mm")),
    Sketcher.Constraint("DistanceX", 3, 1, 3, 2, Q("5.1 mm")),
    Sketcher.Constraint("DistanceX", 7, 2, 7, 1, Q("5.2 mm")),
    Sketcher.Constraint("DistanceX", 9, 2, 9, 1, Q("0.8 mm")),
    Sketcher.Constraint("DistanceX", -1, 1, 0, 2, Q("4 mm")),
    Sketcher.Constraint("DistanceY", 0, 2, 0, 1, Q("2.95 mm")),
    Sketcher.Constraint("DistanceY", 10, 1, 10, 2, Q("2.85 mm")),
    Sketcher.Constraint("Radius", 6, Q("2.402463 mm")),
])
revolution2 = body.newObject("PartDesign::Revolution", "Revolution001")
revolution2.Profile = sketch8
revolution2.ReferenceAxis = (sketch8, ["H_Axis"])
revolution2.Angle = 360
doc.recompute()

fillet = body.newObject("PartDesign::Fillet", "Fillet")
fillet.Base = (revolution2, edges_at(revolution2, [(0, 4, 2.95), (0, 5, 2.95), (0, 5, 2.5)]))
fillet.Radius = 0.1
doc.recompute()

fillet2 = body.newObject("PartDesign::Fillet", "Fillet001")
fillet2.Base = (fillet, edges_at(fillet, [
    (0, 4, -1.52),
    (0.25, 4, 1.27),
    (0.25, 4, -1.27),
    (0, 4, 1.02),
    (-0.25, 4, 1.27),
    (0, 4, 1.52),
    (-0.25, 4, -1.27),
    (0, 4, -1.02),
]))
fillet2.Radius = 0.1

doc.recompute()
